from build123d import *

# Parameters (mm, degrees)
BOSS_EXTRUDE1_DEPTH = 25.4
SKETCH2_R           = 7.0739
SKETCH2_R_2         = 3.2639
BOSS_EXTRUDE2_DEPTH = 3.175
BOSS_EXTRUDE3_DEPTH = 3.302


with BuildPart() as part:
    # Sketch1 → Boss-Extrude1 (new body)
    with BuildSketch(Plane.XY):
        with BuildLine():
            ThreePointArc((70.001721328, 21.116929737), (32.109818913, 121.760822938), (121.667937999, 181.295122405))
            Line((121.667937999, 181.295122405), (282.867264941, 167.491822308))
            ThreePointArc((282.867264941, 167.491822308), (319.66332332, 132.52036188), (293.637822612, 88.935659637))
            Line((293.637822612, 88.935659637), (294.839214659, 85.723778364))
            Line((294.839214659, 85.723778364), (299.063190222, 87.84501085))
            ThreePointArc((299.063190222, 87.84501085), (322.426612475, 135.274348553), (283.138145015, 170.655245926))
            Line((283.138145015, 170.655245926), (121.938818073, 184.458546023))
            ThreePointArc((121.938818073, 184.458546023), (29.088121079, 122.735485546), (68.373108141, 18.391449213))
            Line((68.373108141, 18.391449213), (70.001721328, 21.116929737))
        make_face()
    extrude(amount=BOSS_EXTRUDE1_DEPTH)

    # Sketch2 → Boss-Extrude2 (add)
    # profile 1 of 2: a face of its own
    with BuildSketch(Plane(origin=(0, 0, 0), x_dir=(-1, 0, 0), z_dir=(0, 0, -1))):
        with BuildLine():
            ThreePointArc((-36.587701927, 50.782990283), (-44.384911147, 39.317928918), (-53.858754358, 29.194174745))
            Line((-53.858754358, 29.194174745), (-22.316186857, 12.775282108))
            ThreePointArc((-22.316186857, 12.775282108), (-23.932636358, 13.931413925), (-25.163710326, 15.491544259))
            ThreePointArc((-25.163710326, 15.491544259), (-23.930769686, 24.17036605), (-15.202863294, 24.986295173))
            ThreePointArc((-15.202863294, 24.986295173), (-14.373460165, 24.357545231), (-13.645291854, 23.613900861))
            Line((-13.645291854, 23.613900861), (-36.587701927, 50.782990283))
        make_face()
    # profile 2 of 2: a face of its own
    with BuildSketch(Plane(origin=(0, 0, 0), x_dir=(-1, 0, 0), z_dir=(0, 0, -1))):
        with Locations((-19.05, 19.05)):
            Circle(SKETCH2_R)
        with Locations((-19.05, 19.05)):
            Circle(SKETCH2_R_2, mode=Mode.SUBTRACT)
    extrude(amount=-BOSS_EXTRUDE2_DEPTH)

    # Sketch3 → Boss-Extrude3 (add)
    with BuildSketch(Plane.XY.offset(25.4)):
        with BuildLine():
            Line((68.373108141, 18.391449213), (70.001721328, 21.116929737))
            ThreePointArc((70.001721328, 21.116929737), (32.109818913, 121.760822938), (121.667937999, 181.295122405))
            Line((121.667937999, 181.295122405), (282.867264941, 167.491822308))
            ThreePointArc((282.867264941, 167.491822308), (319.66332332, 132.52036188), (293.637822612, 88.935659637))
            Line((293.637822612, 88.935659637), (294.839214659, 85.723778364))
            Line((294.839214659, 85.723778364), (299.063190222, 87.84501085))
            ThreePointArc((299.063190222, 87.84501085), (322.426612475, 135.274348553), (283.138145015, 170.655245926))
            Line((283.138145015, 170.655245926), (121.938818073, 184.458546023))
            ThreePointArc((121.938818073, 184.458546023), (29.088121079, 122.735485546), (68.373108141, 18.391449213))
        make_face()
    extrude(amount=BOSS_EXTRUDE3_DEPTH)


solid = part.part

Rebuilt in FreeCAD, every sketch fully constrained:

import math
import FreeCAD as App
import Part
import Sketcher
Q = App.Units.Quantity

doc = App.newDocument("Part")
body = doc.addObject("PartDesign::Body", "Body")

sketch1 = body.newObject("Sketcher::SketchObject", "Sketch")
sketch1.AttachmentSupport = (doc.getObject("XY_Plane"), [""])
sketch1.MapMode = "FlatFace"
sketch1.addGeometry(Part.ArcOfCircle(Part.Circle(App.Vector(114.3, 95.2, 0), App.Vector(0, 0, 1), 86.4), math.radians(85), math.radians(239)), False)
sketch1.addGeometry(Part.LineSegment(App.Vector(121.7, 181.3, 0), App.Vector(282.9, 167.5, 0)), False)
sketch1.addGeometry(Part.ArcOfCircle(Part.Circle(App.Vector(279.4, 127, 0), App.Vector(0, 0, 1), 40.6), math.radians(-69), math.radians(85)), False)
sketch1.addGeometry(Part.LineSegment(App.Vector(293.6, 88.9, 0), App.Vector(294.8, 85.7, 0)), False)
sketch1.addGeometry(Part.LineSegment(App.Vector(294.8, 85.7, 0), App.Vector(299.1, 87.8, 0)), False)
sketch1.addGeometry(Part.ArcOfCircle(Part.Circle(App.Vector(279.4, 127, 0), App.Vector(0, 0, 1), 43.8), math.radians(-63), math.radians(85)), False)
sketch1.addGeometry(Part.LineSegment(App.Vector(283.1, 170.7, 0), App.Vector(121.9, 184.5, 0)), False)
sketch1.addGeometry(Part.ArcOfCircle(Part.Circle(App.Vector(114.3, 95.2, 0), App.Vector(0, 0, 1), 89.5), math.radians(85), math.radians(239)), False)
sketch1.addGeometry(Part.LineSegment(App.Vector(68.4, 18.4, 0), App.Vector(70, 21.1, 0)), False)
sketch1.addConstraint(Sketcher.Constraint("Tangent", 0, 1, 1, 1))
sketch1.addConstraint(Sketcher.Constraint("Tangent", 1, 2, 2, 2))
sketch1.addConstraint(Sketcher.Constraint("Coincident", 2, 1, 3, 1))
sketch1.addConstraint(Sketcher.Constraint("Coincident", 3, 2, 4, 1))
sketch1.addConstraint(Sketcher.Constraint("Tangent", 4, 2, 5, 1))
sketch1.addConstraint(Sketcher.Constraint("Tangent", 5, 2, 6, 1))
sketch1.addConstraint(Sketcher.Constraint("Tangent", 6, 2, 7, 1))
sketch1.addConstraint(Sketcher.Constraint("Coincident", 7, 2, 8, 1))
sketch1.addConstraint(Sketcher.Constraint("Coincident", 8, 2, 0, 2))
sketch1.addConstraint(Sketcher.Constraint("Coincident", 5, 3, 2, 3))
sketch1.addConstraint(Sketcher.Constraint("Coincident", 7, 3, 0, 3))
sketch1.addConstraint(Sketcher.Constraint("Parallel", 1, 6))
sketch1.addConstraint(Sketcher.Constraint("Radius", 0, Q("3.4 in")))
sketch1.addConstraint(Sketcher.Constraint("Radius", 2, Q("1.6 in")))
sketch1.addConstraint(Sketcher.Constraint("DistanceX", -1, 1, 2, 3, Q("11 in")))
sketch1.addConstraint(Sketcher.Constraint("DistanceY", -1, 1, 2, 3, Q("5 in")))
sketch1.addConstraint(Sketcher.Constraint("Radius", 5, Q("1.725 in")))
sketch1.addConstraint(Sketcher.Constraint("DistanceX", -1, 1, 0, 3, Q("4.5 in")))
sketch1.addConstraint(Sketcher.Constraint("DistanceY", -1, 1, 0, 3, Q("3.75 in")))
sketch1.addConstraint(Sketcher.Constraint("Distance", 4, Q("4.72669 mm")))
sketch1.addConstraint(Sketcher.Constraint("DistanceY", -1, 1, 2, 1, Q("88.93566 mm")))
sketch1.addConstraint(Sketcher.Constraint("DistanceY", -1, 1, 3, 2, Q("85.723778 mm")))
sketch1.addConstraint(Sketcher.Constraint("DistanceX", -1, 1, 7, 2, Q("68.373108 mm")))
sketch1.addConstraint(Sketcher.Constraint("DistanceX", -1, 1, 8, 2, Q("70.001721 mm")))
pad1 = body.newObject("PartDesign::Pad", "Pad")
pad1.Profile = sketch1
pad1.Length = Q("1 in")

sketch2 = body.newObject("Sketcher::SketchObject", "Sketch001")
sketch2.AttachmentSupport = (doc.getObject("XY_Plane"), [""])
sketch2.MapMode = "FlatFace"
sketch2.addGeometry(Part.ArcOfCircle(Part.Circle(App.Vector(114.3, 95.3, 0), App.Vector(0, 0, 1), 89.5), math.radians(-150.22), math.radians(-132.46)), False)
sketch2.addGeometry(Part.LineSegment(App.Vector(53.9, 29.2, 0), App.Vector(22.3, 12.8, 0)), False)
sketch2.addGeometry(Part.ArcOfCircle(Part.Circle(App.Vector(19.1, 19.1, 0), App.Vector(0, 0, 1), 7.1), math.radians(140), math.radians(297)), False)
sketch2.addGeometry(Part.LineSegment(App.Vector(13.6, 23.6, 0), App.Vector(36.6, 50.8, 0)), False)
sketch2.addGeometry(Part.Circle(App.Vector(19.1, 19.1, 0), App.Vector(0, 0, 1), 3.3), False)
sketch2.addConstraint(Sketcher.Constraint("Coincident", 0, 2, 1, 1))
sketch2.addConstraint(Sketcher.Constraint("Tangent", 1, 2, 2, 2))
sketch2.addConstraint(Sketcher.Constraint("Tangent", 2, 1, 3, 1))
sketch2.addConstraint(Sketcher.Constraint("Coincident", 3, 2, 0, 1))
sketch2.addConstraint(Sketcher.Constraint("Coincident", 4, 3, 2, 3))
sketch2.addConstraint(Sketcher.Constraint("Equal", 1, 3))
sketch2.addConstraint(Sketcher.Constraint("Diameter", 4, Q("0.257 in")))
sketch2.addConstraint(Sketcher.Constraint("Radius", 0, Q("3.525 in")))
sketch2.addConstraint(Sketcher.Constraint("DistanceY", 2, 3, 0, 3, Q("3 in")))
sketch2.addConstraint(Sketcher.Constraint("Distance", 1, Q("1.4 in")))
sketch2.addConstraint(Sketcher.Constraint("DistanceX", -1, 1, 0, 3, Q("4.5 in")))
sketch2.addConstraint(Sketcher.Constraint("Radius", 2, Q("0.2785 in")))
sketch2.addConstraint(Sketcher.Constraint("DistanceY", -1, 1, 0, 3, Q("3.75 in")))
sketch2.addConstraint(Sketcher.Constraint("DistanceX", -1, 1, 2, 3, Q("0.75 in")))
pad2 = body.newObject("PartDesign::Pad", "Pad001")
pad2.Profile = sketch2
pad2.Length = Q("0.125 in")

sketch3 = body.newObject("Sketcher::SketchObject", "Sketch002")
sketch3.AttachmentSupport = (doc.getObject("XY_Plane"), [""])
sketch3.MapMode = "FlatFace"
sketch3.AttachmentOffset = App.Placement(App.Vector(0, 0, 1 * 25.4), App.Rotation())
sketch3.addGeometry(Part.LineSegment(App.Vector(68.4, 18.4, 0), App.Vector(70, 21.1, 0)), False)
sketch3.addGeometry(Part.ArcOfCircle(Part.Circle(App.Vector(114.3, 95.2, 0), App.Vector(0, 0, 1), 86.4), math.radians(85), math.radians(239)), False)
sketch3.addGeometry(Part.LineSegment(App.Vector(121.7, 181.3, 0), App.Vector(282.9, 167.5, 0)), False)
sketch3.addGeometry(Part.ArcOfCircle(Part.Circle(App.Vector(279.4, 127, 0), App.Vector(0, 0, 1), 40.6), math.radians(-69), math.radians(85)), False)
sketch3.addGeometry(Part.LineSegment(App.Vector(293.6, 88.9, 0), App.Vector(294.8, 85.7, 0)), False)
sketch3.addGeometry(Part.LineSegment(App.Vector(294.8, 85.7, 0), App.Vector(299.1, 87.8, 0)), False)
sketch3.addGeometry(Part.ArcOfCircle(Part.Circle(App.Vector(279.4, 127, 0), App.Vector(0, 0, 1), 43.8), math.radians(-63), math.radians(85)), False)
sketch3.addGeometry(Part.LineSegment(App.Vector(283.1, 170.7, 0), App.Vector(121.9, 184.5, 0)), False)
sketch3.addGeometry(Part.ArcOfCircle(Part.Circle(App.Vector(114.3, 95.2, 0), App.Vector(0, 0, 1), 89.5), math.radians(85), math.radians(239)), False)
sketch3.addConstraint(Sketcher.Constraint("Coincident", 0, 2, 1, 2))
sketch3.addConstraint(Sketcher.Constraint("Tangent", 1, 1, 2, 1))
sketch3.addConstraint(Sketcher.Constraint("Tangent", 2, 2, 3, 2))
sketch3.addConstraint(Sketcher.Constraint("Coincident", 3, 1, 4, 1))
sketch3.addConstraint(Sketcher.Constraint("Coincident", 4, 2, 5, 1))
sketch3.addConstraint(Sketcher.Constraint("Tangent", 5, 2, 6, 1))
sketch3.addConstraint(Sketcher.Constraint("Tangent", 6, 2, 7, 1))
sketch3.addConstraint(Sketcher.Constraint("Tangent", 7, 2, 8, 1))
sketch3.addConstraint(Sketcher.Constraint("Coincident", 8, 2, 0, 1))
sketch3.addConstraint(Sketcher.Constraint("Coincident", 6, 3, 3, 3))
sketch3.addConstraint(Sketcher.Constraint("Coincident", 8, 3, 1, 3))
sketch3.addConstraint(Sketcher.Constraint("Parallel", 2, 7))
sketch3.addConstraint(Sketcher.Constraint("Radius", 1, Q("3.4 in")))
sketch3.addConstraint(Sketcher.Constraint("Radius", 3, Q("1.6 in")))
sketch3.addConstraint(Sketcher.Constraint("DistanceX", -1, 1, 3, 3, Q("11 in")))
sketch3.addConstraint(Sketcher.Constraint("DistanceY", -1, 1, 3, 3, Q("5 in")))
sketch3.addConstraint(Sketcher.Constraint("Radius", 6, Q("1.725 in")))
sketch3.addConstraint(Sketcher.Constraint("DistanceX", -1, 1, 1, 3, Q("4.5 in")))
sketch3.addConstraint(Sketcher.Constraint("DistanceY", -1, 1, 1, 3, Q("3.75 in")))
sketch3.addConstraint(Sketcher.Constraint("Distance", 5, Q("4.72669 mm")))
sketch3.addConstraint(Sketcher.Constraint("DistanceX", -1, 1, 0, 2, Q("70.001721 mm")))
sketch3.addConstraint(Sketcher.Constraint("DistanceY", -1, 1, 3, 1, Q("88.93566 mm")))
sketch3.addConstraint(Sketcher.Constraint("DistanceY", -1, 1, 4, 2, Q("85.723778 mm")))
sketch3.addConstraint(Sketcher.Constraint("DistanceX", -1, 1, 8, 2, Q("68.373108 mm")))
pad3 = body.newObject("PartDesign::Pad", "Pad002")
pad3.Profile = sketch3
pad3.Length = Q("0.13 in")

doc.recompute()
